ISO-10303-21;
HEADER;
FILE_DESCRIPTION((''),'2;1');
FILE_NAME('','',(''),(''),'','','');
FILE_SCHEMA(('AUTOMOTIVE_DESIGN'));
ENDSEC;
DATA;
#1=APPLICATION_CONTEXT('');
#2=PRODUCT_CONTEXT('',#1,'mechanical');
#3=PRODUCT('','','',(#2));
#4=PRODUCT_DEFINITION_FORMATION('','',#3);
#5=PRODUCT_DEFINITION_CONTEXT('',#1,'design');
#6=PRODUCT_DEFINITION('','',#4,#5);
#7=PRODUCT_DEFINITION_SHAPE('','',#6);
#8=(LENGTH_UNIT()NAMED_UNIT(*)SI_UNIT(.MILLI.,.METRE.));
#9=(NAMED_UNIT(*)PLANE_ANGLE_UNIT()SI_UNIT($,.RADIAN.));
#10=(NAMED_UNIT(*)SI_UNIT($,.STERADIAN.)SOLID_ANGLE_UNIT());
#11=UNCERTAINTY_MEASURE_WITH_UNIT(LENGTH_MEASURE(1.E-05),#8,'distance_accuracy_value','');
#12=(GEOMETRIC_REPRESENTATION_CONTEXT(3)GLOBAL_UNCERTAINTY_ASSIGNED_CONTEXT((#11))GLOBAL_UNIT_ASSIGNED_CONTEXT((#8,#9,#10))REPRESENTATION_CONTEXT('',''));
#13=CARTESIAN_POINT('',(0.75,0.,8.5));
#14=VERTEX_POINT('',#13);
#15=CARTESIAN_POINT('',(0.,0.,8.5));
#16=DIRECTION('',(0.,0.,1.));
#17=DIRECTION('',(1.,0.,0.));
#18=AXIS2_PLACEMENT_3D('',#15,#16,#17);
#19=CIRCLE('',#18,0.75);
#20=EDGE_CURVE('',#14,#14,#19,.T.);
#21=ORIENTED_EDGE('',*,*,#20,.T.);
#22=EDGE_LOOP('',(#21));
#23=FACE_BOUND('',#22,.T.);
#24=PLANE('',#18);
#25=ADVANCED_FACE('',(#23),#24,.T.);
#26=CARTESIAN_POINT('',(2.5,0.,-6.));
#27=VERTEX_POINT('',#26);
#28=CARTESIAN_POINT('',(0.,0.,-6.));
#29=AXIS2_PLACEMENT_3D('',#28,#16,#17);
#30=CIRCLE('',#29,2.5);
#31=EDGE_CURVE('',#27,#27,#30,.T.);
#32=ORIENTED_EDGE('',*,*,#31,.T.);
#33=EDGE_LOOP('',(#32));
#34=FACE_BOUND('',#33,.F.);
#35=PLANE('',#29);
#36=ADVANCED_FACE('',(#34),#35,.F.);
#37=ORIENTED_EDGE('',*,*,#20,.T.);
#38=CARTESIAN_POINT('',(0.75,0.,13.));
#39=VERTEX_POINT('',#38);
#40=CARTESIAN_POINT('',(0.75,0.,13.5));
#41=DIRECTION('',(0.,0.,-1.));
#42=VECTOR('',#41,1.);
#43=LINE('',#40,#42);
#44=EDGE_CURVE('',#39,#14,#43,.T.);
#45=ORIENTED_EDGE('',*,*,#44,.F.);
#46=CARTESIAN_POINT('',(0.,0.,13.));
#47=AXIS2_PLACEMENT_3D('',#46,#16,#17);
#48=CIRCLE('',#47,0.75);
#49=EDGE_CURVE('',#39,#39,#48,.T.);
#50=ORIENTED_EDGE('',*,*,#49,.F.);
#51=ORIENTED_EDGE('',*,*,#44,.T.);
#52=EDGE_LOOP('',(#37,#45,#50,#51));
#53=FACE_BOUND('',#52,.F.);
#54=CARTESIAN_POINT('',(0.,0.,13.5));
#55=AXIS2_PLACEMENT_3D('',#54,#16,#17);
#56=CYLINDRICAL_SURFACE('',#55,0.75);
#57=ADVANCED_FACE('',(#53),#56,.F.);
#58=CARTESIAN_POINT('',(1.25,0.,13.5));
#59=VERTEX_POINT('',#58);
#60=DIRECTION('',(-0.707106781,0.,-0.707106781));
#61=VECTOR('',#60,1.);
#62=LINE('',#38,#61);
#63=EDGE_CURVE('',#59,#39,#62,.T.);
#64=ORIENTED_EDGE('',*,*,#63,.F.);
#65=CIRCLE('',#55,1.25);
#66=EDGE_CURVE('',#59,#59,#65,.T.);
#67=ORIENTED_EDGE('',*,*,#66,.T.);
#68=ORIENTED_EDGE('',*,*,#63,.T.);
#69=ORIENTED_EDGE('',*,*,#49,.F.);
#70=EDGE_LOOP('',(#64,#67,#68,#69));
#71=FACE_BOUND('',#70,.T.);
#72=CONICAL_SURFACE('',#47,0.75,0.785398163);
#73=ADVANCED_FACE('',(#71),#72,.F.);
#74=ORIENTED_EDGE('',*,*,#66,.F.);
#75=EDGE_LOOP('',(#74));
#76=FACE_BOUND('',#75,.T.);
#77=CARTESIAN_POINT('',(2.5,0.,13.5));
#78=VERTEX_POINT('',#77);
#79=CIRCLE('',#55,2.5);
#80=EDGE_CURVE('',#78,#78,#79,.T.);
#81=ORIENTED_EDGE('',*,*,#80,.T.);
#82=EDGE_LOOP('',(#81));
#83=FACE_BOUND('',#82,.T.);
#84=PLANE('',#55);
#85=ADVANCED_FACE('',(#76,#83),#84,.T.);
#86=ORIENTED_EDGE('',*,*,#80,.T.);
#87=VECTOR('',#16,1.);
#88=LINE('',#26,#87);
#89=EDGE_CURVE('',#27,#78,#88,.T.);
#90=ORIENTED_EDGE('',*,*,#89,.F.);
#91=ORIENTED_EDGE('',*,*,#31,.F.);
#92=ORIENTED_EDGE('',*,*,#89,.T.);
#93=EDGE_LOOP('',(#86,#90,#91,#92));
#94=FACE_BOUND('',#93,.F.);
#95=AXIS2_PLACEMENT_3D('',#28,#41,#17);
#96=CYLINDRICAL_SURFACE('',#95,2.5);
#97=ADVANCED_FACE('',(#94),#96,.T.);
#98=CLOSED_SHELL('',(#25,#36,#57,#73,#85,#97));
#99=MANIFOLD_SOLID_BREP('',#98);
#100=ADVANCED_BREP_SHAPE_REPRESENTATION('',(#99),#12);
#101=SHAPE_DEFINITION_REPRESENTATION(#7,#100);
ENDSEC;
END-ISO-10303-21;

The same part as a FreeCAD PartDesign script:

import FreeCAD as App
import Part
import Sketcher
from FreeCAD import Vector
Q = App.Units.Quantity


def edges_at(feature, points):
    """Names of the edges that pass closest to the given points."""
    edges = feature.Shape.Edges
    near = lambda p: min(range(len(edges)), key=lambda i: edges[i].distToShape(Part.Vertex(*p))[0])
    return sorted({f"Edge{near(p) + 1}" for p in points})

doc = App.newDocument("Part")
body = doc.addObject("PartDesign::Body", "Body")

# Sketch on XY plane
sketch1 = doc.addObject("Sketcher::SketchObject", "Sketch")
body.addObject(sketch1)
sketch1.AttachmentSupport = (doc.XY_Plane, [""])
sketch1.MapMode = "FlatFace"
sketch1.AttachmentOffset = App.Placement(Vector(0, 0, -6), App.Rotation())
sketch1.addGeometry(Part.Circle(Vector(0, 0, 0), Vector(0, 0, 1), 2.5), False)
sketch1.addConstraint([
    Sketcher.Constraint("Coincident", 0, 3, -1, 1),
    Sketcher.Constraint("Diameter", 0, Q("5 mm")),
])
pad1 = doc.addObject("PartDesign::Pad", "Pad")
body.addObject(pad1)
pad1.Profile = sketch1
pad1.Length = 19.5

# Sketch on XY plane
sketch2 = doc.addObject("Sketcher::SketchObject", "Sketch001")
body.addObject(sketch2)
sketch2.AttachmentSupport = (doc.XY_Plane, [""])
sketch2.MapMode = "FlatFace"
sketch2.AttachmentOffset = App.Placement(Vector(0, 0, 13.5), App.Rotation())
sketch2.addGeometry(Part.Circle(Vector(0, 0, 0), Vector(0, 0, 1), 0.8), False)
sketch2.addConstraint([
    Sketcher.Constraint("Coincident", 0, 3, -1, 1),
    Sketcher.Constraint("Diameter", 0, Q("1.5 mm")),
])
pocket1 = doc.addObject("PartDesign::Pocket", "Pocket")
body.addObject(pocket1)
pocket1.Profile = sketch2
pocket1.Length = 5
doc.recompute()

chamfer = doc.addObject("PartDesign::Chamfer", "Chamfer")
body.addObject(chamfer)
chamfer.Base = (pocket1, edges_at(pocket1, [(-0.75, 0, 13.5)]))
chamfer.Size = 0.5

doc.recompute()
